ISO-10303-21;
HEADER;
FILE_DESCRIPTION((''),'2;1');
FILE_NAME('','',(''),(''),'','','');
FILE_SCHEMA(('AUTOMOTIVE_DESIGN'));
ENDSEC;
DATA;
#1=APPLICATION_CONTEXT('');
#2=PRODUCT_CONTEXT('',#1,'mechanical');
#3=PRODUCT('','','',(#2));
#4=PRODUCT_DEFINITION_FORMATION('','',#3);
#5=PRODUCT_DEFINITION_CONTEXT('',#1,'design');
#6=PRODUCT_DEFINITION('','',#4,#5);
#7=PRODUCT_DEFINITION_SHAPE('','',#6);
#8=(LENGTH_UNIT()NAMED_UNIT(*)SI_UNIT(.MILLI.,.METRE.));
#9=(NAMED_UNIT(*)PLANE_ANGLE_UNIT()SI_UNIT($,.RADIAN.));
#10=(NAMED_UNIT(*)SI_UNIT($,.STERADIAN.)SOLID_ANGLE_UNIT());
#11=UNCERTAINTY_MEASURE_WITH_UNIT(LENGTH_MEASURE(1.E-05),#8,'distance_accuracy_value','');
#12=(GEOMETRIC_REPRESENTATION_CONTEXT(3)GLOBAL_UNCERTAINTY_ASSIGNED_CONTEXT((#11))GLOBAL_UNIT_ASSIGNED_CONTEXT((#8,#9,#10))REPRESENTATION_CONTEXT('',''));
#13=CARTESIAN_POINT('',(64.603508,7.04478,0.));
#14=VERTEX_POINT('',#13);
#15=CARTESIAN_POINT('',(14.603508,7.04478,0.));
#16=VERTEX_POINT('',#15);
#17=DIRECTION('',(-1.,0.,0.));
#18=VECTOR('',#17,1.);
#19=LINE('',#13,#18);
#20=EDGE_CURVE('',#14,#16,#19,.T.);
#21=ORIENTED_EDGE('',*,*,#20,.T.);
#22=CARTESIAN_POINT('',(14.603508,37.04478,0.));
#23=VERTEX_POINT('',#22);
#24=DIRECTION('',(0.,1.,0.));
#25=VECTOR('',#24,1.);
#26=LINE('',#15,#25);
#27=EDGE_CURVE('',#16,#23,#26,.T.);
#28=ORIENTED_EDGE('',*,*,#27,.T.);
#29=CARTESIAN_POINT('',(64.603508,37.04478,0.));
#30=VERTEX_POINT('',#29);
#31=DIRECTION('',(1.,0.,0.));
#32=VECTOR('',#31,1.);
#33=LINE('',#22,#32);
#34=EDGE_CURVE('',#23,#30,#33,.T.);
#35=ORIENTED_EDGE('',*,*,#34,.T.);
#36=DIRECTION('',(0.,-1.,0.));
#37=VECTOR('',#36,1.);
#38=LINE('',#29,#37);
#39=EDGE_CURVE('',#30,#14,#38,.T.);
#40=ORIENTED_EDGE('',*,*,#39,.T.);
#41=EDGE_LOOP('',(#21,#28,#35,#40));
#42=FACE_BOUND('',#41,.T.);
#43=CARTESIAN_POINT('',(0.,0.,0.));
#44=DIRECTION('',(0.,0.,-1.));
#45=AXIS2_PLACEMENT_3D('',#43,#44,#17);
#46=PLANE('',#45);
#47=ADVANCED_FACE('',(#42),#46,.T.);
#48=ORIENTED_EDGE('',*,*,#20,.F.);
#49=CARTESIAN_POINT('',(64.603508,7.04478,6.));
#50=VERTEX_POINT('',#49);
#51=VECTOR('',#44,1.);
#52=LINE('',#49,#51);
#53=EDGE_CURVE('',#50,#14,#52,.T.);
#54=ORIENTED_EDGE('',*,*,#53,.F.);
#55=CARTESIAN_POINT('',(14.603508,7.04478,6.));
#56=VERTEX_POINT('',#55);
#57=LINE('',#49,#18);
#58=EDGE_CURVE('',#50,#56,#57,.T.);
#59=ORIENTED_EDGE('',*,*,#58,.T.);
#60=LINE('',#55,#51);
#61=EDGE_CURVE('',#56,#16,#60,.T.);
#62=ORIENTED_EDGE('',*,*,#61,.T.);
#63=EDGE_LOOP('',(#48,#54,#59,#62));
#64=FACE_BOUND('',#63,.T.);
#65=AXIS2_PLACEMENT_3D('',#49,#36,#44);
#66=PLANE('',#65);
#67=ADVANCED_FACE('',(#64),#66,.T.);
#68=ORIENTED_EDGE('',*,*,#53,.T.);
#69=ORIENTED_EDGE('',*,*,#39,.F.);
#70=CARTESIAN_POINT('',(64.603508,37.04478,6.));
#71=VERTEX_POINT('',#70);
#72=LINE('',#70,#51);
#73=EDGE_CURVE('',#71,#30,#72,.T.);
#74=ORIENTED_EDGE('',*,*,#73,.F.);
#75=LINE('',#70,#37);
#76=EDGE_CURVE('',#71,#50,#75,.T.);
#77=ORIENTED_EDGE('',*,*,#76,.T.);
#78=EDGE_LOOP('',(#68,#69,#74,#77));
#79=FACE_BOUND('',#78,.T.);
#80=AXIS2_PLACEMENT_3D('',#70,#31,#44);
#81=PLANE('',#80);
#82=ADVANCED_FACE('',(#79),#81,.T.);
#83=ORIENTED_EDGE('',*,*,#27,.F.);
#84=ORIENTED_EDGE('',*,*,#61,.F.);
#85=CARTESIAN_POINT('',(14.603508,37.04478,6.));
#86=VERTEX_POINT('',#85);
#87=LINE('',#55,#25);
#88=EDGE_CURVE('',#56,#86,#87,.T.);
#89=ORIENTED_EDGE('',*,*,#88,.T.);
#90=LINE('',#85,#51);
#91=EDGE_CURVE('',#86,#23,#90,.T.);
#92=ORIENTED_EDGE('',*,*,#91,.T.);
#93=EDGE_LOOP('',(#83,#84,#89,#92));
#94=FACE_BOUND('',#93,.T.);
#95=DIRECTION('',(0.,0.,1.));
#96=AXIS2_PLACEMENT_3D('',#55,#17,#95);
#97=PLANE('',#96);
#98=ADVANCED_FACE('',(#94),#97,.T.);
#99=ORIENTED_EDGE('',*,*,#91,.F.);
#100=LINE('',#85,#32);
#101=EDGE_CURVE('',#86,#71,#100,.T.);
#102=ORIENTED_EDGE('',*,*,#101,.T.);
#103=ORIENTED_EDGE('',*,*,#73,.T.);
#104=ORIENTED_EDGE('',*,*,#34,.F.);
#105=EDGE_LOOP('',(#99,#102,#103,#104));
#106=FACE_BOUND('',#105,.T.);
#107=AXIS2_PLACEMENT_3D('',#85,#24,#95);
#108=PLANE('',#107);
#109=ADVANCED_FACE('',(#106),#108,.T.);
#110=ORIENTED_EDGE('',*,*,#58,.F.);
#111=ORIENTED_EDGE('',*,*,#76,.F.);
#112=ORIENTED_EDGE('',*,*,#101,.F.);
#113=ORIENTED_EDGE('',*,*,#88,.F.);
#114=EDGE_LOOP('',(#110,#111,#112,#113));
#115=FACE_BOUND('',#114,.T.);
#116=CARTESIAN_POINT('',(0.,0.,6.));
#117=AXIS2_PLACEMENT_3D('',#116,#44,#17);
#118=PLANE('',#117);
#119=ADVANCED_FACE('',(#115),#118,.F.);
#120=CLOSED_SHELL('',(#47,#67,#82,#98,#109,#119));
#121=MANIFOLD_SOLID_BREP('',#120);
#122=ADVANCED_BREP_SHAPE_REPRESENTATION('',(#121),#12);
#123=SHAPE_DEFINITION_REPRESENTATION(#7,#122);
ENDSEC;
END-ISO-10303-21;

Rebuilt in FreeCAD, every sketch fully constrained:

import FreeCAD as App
import Part
import Sketcher

V = App.Vector

doc = App.newDocument("Part")
body = doc.addObject("PartDesign::Body", "Body")

# Sketch on XY plane
sketch1 = doc.addObject("Sketcher::SketchObject", "Sketch")
body.addObject(sketch1)
sketch1.AttachmentSupport = (doc.XY_Plane, [""])
sketch1.MapMode = "FlatFace"
sketch1.addGeometry([
    Part.LineSegment(V(15, 37, 0), V(15, 7, 0)),
    Part.LineSegment(V(15, 7, 0), V(65, 7, 0)),
    Part.LineSegment(V(65, 7, 0), V(65, 37, 0)),
    Part.LineSegment(V(65, 37, 0), V(15, 37, 0)),
], False)
sketch1.addConstraint([
    Sketcher.Constraint("Coincident", 0, 2, 1, 1),
    Sketcher.Constraint("Coincident", 1, 2, 2, 1),
    Sketcher.Constraint("Coincident", 2, 2, 3, 1),
    Sketcher.Constraint("Coincident", 3, 2, 0, 1),
    Sketcher.Constraint("Vertical", 0),
    Sketcher.Constraint("Horizontal", 1),
    Sketcher.Constraint("Vertical", 2),
    Sketcher.Constraint("Horizontal", 3),
    Sketcher.Constraint("DistanceX", 1, 1, 1, 2, 50.0),
    Sketcher.Constraint("DistanceY", 0, 2, 0, 1, 30.0),
    Sketcher.Constraint("DistanceY", -1, 1, 0, 2, 7.04478),
    Sketcher.Constraint("DistanceX", -1, 1, 0, 2, 14.603508),
])
pad1 = doc.addObject("PartDesign::Pad", "Pad")
body.addObject(pad1)
pad1.Profile = sketch1
pad1.Length = 6

doc.recompute()
